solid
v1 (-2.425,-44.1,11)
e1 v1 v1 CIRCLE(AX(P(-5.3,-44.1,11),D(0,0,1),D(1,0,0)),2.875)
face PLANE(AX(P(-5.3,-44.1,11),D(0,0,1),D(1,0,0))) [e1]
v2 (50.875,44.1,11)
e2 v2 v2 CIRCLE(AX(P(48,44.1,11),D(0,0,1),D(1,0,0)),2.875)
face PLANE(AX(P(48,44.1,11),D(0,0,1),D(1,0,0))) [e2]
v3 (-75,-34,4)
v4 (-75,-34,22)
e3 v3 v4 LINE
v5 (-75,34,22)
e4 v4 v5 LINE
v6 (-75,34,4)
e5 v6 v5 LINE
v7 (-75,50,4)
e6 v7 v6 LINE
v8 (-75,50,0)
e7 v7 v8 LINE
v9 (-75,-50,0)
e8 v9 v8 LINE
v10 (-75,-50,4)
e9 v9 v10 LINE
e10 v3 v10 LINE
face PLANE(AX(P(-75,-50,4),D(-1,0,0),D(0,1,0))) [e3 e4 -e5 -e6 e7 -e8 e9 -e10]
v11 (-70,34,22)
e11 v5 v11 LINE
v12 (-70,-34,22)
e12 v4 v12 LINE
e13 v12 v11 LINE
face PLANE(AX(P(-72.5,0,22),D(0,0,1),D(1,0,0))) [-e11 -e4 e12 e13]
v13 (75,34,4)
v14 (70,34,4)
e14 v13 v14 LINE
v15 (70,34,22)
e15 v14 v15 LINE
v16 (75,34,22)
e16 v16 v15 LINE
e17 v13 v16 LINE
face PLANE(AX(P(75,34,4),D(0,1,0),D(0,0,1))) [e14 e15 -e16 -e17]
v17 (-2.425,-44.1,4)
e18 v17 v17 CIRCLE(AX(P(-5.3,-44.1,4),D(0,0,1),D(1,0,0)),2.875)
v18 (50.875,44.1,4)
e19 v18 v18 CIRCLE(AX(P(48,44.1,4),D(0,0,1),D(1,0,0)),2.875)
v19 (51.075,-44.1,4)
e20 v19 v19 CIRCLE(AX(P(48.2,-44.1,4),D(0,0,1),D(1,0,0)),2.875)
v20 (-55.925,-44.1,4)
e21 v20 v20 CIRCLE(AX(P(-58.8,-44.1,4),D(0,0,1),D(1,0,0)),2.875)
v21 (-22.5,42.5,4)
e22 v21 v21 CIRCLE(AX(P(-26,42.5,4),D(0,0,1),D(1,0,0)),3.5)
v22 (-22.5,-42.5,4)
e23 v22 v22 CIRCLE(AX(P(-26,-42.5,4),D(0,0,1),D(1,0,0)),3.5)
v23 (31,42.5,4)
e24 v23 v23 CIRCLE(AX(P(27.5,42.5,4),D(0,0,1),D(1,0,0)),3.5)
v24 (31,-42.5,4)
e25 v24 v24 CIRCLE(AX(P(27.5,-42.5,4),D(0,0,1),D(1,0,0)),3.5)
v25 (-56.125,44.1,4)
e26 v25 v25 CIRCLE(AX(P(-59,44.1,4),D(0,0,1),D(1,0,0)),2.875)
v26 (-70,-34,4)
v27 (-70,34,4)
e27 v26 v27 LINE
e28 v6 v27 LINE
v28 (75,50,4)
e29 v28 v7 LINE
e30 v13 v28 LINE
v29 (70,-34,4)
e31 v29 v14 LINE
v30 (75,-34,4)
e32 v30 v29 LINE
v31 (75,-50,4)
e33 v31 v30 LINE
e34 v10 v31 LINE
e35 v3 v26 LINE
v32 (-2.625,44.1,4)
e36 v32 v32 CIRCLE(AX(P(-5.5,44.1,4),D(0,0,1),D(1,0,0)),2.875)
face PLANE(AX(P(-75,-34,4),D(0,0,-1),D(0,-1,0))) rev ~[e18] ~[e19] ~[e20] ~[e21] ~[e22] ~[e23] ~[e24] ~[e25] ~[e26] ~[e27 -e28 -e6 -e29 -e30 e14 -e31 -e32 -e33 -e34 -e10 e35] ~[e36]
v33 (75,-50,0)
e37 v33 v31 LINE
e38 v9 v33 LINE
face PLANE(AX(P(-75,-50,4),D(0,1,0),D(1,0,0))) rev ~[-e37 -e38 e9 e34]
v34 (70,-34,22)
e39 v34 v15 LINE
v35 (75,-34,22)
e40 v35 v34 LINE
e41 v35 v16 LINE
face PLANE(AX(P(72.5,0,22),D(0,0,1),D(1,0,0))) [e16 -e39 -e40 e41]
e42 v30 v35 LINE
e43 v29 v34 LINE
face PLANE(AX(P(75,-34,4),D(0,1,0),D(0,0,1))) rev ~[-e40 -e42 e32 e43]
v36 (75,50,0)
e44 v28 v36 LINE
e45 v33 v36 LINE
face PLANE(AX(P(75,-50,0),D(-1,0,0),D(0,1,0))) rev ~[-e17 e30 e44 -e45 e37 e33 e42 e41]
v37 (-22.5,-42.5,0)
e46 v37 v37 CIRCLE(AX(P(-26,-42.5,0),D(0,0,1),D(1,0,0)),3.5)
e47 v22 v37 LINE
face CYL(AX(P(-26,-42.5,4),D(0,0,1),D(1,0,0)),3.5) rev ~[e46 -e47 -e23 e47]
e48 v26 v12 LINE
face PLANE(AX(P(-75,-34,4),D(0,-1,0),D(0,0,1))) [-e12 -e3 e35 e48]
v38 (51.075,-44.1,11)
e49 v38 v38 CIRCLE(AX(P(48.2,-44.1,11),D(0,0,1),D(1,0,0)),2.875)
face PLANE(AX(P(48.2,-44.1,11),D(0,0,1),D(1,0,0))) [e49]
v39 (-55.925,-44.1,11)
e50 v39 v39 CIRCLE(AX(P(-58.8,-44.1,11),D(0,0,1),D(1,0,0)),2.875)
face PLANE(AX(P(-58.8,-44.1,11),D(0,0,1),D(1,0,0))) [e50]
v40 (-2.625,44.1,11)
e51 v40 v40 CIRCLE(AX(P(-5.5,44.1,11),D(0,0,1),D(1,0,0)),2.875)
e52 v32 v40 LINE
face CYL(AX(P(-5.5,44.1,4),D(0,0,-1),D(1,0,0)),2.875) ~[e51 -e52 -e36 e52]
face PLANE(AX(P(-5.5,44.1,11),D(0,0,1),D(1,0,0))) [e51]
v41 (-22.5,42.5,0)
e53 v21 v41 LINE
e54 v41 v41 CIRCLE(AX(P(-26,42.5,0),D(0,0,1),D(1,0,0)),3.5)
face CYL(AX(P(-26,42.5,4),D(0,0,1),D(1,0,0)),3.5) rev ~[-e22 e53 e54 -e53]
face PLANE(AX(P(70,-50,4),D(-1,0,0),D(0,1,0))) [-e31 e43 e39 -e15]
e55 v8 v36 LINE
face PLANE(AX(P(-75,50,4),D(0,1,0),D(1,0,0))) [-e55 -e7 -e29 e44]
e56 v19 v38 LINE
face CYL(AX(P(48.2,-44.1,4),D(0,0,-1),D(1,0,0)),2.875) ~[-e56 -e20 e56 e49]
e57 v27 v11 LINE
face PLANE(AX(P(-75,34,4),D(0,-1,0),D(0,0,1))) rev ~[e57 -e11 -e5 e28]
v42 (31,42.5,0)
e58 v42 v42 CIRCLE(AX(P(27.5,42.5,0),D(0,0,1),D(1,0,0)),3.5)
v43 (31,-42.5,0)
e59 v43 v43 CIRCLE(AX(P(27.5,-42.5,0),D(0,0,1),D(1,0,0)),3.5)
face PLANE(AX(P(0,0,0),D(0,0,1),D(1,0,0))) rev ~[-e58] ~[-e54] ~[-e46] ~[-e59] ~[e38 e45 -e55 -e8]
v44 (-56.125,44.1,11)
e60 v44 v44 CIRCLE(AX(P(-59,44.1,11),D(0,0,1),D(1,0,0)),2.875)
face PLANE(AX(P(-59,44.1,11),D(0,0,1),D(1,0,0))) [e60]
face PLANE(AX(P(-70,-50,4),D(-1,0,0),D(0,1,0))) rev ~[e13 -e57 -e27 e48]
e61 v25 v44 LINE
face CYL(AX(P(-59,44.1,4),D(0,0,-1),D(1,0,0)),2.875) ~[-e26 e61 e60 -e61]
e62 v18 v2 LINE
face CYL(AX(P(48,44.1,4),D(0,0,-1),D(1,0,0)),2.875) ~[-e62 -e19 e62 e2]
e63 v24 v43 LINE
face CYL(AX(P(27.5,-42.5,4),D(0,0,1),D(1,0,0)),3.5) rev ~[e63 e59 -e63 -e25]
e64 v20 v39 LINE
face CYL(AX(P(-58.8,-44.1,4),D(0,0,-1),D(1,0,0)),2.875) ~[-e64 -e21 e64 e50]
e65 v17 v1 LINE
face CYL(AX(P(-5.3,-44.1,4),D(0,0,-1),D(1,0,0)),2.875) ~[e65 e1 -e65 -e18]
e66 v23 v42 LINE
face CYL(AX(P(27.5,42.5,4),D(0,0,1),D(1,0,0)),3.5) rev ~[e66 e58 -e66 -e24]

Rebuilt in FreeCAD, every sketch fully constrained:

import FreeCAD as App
import Part
import Sketcher

V = App.Vector
Q = App.Units.Quantity

doc = App.newDocument("Part")
body = doc.addObject("PartDesign::Body", "Body")

# Sketch on XY plane
sketch1 = body.newObject("Sketcher::SketchObject", "Sketch")
sketch1.AttachmentSupport = (doc.getObject("XY_Plane"), [""])
sketch1.MapMode = "FlatFace"
sketch1.addGeometry([
    Part.LineSegment(V(-75, 50, 0), V(-75, -50, 0)),
    Part.LineSegment(V(-75, -50, 0), V(75, -50, 0)),
    Part.LineSegment(V(75, -50, 0), V(75, 50, 0)),
    Part.LineSegment(V(75, 50, 0), V(-75, 50, 0)),
], False)
sketch1.addConstraint([
    Sketcher.Constraint("Coincident", 0, 2, 1, 1),
    Sketcher.Constraint("Coincident", 1, 2, 2, 1),
    Sketcher.Constraint("Coincident", 2, 2, 3, 1),
    Sketcher.Constraint("Coincident", 3, 2, 0, 1),
    Sketcher.Constraint("Vertical", 0),
    Sketcher.Constraint("Horizontal", 1),
    Sketcher.Constraint("Vertical", 2),
    Sketcher.Constraint("Horizontal", 3),
    Sketcher.Constraint("Symmetric", 0, 2, 2, 2, -1, 1),
    Sketcher.Constraint("DistanceX", 1, 1, 1, 2, Q("150 mm")),
    Sketcher.Constraint("DistanceY", 0, 2, 0, 1, Q("100 mm")),
])
pad1 = body.newObject("PartDesign::Pad", "Pad")
pad1.Profile = sketch1
pad1.Length = 4

# Sketch on XY plane
sketch2 = body.newObject("Sketcher::SketchObject", "Sketch001")
sketch2.AttachmentSupport = (doc.getObject("XY_Plane"), [""])
sketch2.MapMode = "FlatFace"
sketch2.AttachmentOffset = App.Placement(V(0, 0, 4), App.Rotation())
sketch2.addGeometry([
    Part.LineSegment(V(-75, 50, 0), V(-75, -50, 0)),  # 0
    Part.LineSegment(V(-75, -50, 0), V(-70, -50, 0)),  # 1
    Part.LineSegment(V(-70, -50, 0), V(-70, 50, 0)),  # 2
    Part.LineSegment(V(-70, 50, 0), V(-75, 50, 0)),  # 3
    Part.LineSegment(V(70, 50, 0), V(70, -50, 0)),  # 4
    Part.LineSegment(V(70, -50, 0), V(75, -50, 0)),  # 5
    Part.LineSegment(V(75, -50, 0), V(75, 50, 0)),  # 6
    Part.LineSegment(V(75, 50, 0), V(70, 50, 0)),  # 7
], False)
sketch2.addConstraint([
    Sketcher.Constraint("Coincident", 0, 2, 1, 1),
    Sketcher.Constraint("Coincident", 1, 2, 2, 1),
    Sketcher.Constraint("Coincident", 2, 2, 3, 1),
    Sketcher.Constraint("Coincident", 3, 2, 0, 1),
    Sketcher.Constraint("Coincident", 4, 2, 5, 1),
    Sketcher.Constraint("Coincident", 5, 2, 6, 1),
    Sketcher.Constraint("Coincident", 6, 2, 7, 1),
    Sketcher.Constraint("Coincident", 7, 2, 4, 1),
    Sketcher.Constraint("Vertical", 0),
    Sketcher.Constraint("Horizontal", 1),
    Sketcher.Constraint("Vertical", 2),
    Sketcher.Constraint("Horizontal", 3),
    Sketcher.Constraint("Vertical", 4),
    Sketcher.Constraint("Horizontal", 5),
    Sketcher.Constraint("Vertical", 6),
    Sketcher.Constraint("Horizontal", 7),
    Sketcher.Constraint("Symmetric", 2, 2, 4, 2, -1, 1),
    Sketcher.Constraint("Symmetric", 0, 2, 6, 2, -1, 1),
    Sketcher.Constraint("Horizontal", 1, 2, 4, 2),
    Sketcher.Constraint("DistanceX", 1, 1, 1, 2, Q("5 mm")),
    Sketcher.Constraint("DistanceY", 0, 2, 0, 1, Q("100 mm")),
    Sketcher.Constraint("DistanceX", 0, 2, -1, 1, Q("75 mm")),
])
pad2 = body.newObject("PartDesign::Pad", "Pad001")
pad2.Profile = sketch2
pad2.Length = 18

# Sketch on XY plane
sketch3 = body.newObject("Sketcher::SketchObject", "Sketch002")
sketch3.AttachmentSupport = (doc.getObject("XY_Plane"), [""])
sketch3.MapMode = "FlatFace"
sketch3.AttachmentOffset = App.Placement(V(0, 0, 4), App.Rotation())
sketch3.addGeometry([
    Part.Circle(V(-26, 42.5, 0), V(0, 0, 1), 3.5),
    Part.Circle(V(27.5, 42.5, 0), V(0, 0, 1), 3.5),
    Part.Circle(V(27.5, -42.5, 0), V(0, 0, 1), 3.5),
    Part.Circle(V(-26, -42.5, 0), V(0, 0, 1), 3.5),
], False)
sketch3.addConstraint([
    Sketcher.Constraint("Equal", 0, 1),
    Sketcher.Constraint("Equal", 1, 2),
    Sketcher.Constraint("Equal", 2, 3),
    Sketcher.Constraint("Symmetric", 1, 3, 2, 3, -1),
    Sketcher.Constraint("Symmetric", 0, 3, 3, 3, -1),
    Sketcher.Constraint("Horizontal", 0, 3, 1, 3),
    Sketcher.Constraint("Diameter", 0, Q("7 mm")),
    Sketcher.Constraint("DistanceX", 0, 3, -1, 1, Q("26 mm")),
    Sketcher.Constraint("DistanceY", 2, 3, 1, 3, Q("85 mm")),
    Sketcher.Constraint("DistanceX", -1, 1, 1, 3, Q("27.5 mm")),
])
pocket1 = body.newObject("PartDesign::Pocket", "Pocket")
pocket1.Profile = sketch3
pocket1.Length = 5

# Sketch on XY plane
sketch4 = body.newObject("Sketcher::SketchObject", "Sketch003")
sketch4.AttachmentSupport = (doc.getObject("XY_Plane"), [""])
sketch4.MapMode = "FlatFace"
sketch4.AttachmentOffset = App.Placement(V(0, 0, 4), App.Rotation())
sketch4.addGeometry([
    Part.Circle(V(-59, 44.1, 0), V(0, 0, 1), 2.875),  # 0
    Part.Circle(V(-5.5, 44.1, 0), V(0, 0, 1), 2.875),  # 1
    Part.Circle(V(48, 44.1, 0), V(0, 0, 1), 2.875),  # 2
    Part.Circle(V(48.2, -44.1, 0), V(0, 0, 1), 2.875),  # 3
    Part.Circle(V(-5.3, -44.1, 0), V(0, 0, 1), 2.875),  # 4
    Part.Circle(V(-58.8, -44.1, 0), V(0, 0, 1), 2.875),  # 5
], False)
sketch4.addConstraint([
    Sketcher.Constraint("Equal", 0, 1),
    Sketcher.Constraint("Equal", 1, 2),
    Sketcher.Constraint("Equal", 2, 3),
    Sketcher.Constraint("Equal", 3, 4),
    Sketcher.Constraint("Equal", 4, 5),
    Sketcher.Constraint("Horizontal", 0, 3, 1, 3),
    Sketcher.Constraint("Horizontal", 1, 3, 2, 3),
    Sketcher.Constraint("Horizontal", 3, 3, 4, 3),
    Sketcher.Constraint("Horizontal", 4, 3, 5, 3),
    Sketcher.Constraint("Diameter", 0, Q("5.75 mm")),
    Sketcher.Constraint("DistanceX", 0, 3, -1, 1, Q("59 mm")),
    Sketcher.Constraint("DistanceX", -1, 1, 2, 3, Q("48 mm")),
    Sketcher.Constraint("DistanceX", 5, 3, 3, 3, Q("107 mm")),
    Sketcher.Constraint("DistanceY", -1, 1, 0, 3, Q("44.1 mm")),
    Sketcher.Constraint("DistanceX", 1, 3, -1, 1, Q("5.5 mm")),
    Sketcher.Constraint("DistanceX", -1, 1, 3, 3, Q("48.2 mm")),
    Sketcher.Constraint("DistanceY", 3, 3, -1, 1, Q("44.1 mm")),
    Sketcher.Constraint("DistanceX", 4, 3, -1, 1, Q("5.3 mm")),
])
pad3 = body.newObject("PartDesign::Pad", "Pad002")
pad3.Profile = sketch4
pad3.Length = 7

# Sketch on YZ plane
sketch5 = body.newObject("Sketcher::SketchObject", "Sketch004")
sketch5.AttachmentSupport = (doc.getObject("YZ_Plane"), [""])
sketch5.MapMode = "FlatFace"
sketch5.AttachmentOffset = App.Placement(V(0, 0, -75), App.Rotation())
sketch5.addGeometry([
    Part.LineSegment(V(50, 22, 0), V(50, 4, 0)),  # 0
    Part.LineSegment(V(50, 4, 0), V(34, 4, 0)),  # 1
    Part.LineSegment(V(34, 4, 0), V(34, 22, 0)),  # 2
    Part.LineSegment(V(34, 22, 0), V(50, 22, 0)),  # 3
    Part.LineSegment(V(-34, 22, 0), V(-34, 4, 0)),  # 4
    Part.LineSegment(V(-34, 4, 0), V(-50, 4, 0)),  # 5
    Part.LineSegment(V(-50, 4, 0), V(-50, 22, 0)),  # 6
    Part.LineSegment(V(-50, 22, 0), V(-34, 22, 0)),  # 7
], False)
sketch5.addConstraint([
    Sketcher.Constraint("Coincident", 0, 2, 1, 1),
    Sketcher.Constraint("Coincident", 1, 2, 2, 1),
    Sketcher.Constraint("Coincident", 2, 2, 3, 1),
    Sketcher.Constraint("Coincident", 3, 2, 0, 1),
    Sketcher.Constraint("Coincident", 4, 2, 5, 1),
    Sketcher.Constraint("Coincident", 5, 2, 6, 1),
    Sketcher.Constraint("Coincident", 6, 2, 7, 1),
    Sketcher.Constraint("Coincident", 7, 2, 4, 1),
    Sketcher.Constraint("Vertical", 0),
    Sketcher.Constraint("Horizontal", 1),
    Sketcher.Constraint("Vertical", 2),
    Sketcher.Constraint("Horizontal", 3),
    Sketcher.Constraint("Vertical", 4),
    Sketcher.Constraint("Horizontal", 5),
    Sketcher.Constraint("Vertical", 6),
    Sketcher.Constraint("Horizontal", 7),
    Sketcher.Constraint("Symmetric", 1, 2, 4, 2, -2),
    Sketcher.Constraint("Symmetric", 3, 2, 6, 2, -2),
    Sketcher.Constraint("DistanceX", 1, 2, 1, 1, Q("16 mm")),
    Sketcher.Constraint("DistanceY", 0, 2, 0, 1, Q("18 mm")),
    Sketcher.Constraint("DistanceX", -1, 1, 0, 2, Q("50 mm")),
    Sketcher.Constraint("DistanceY", -1, 1, 0, 2, Q("4 mm")),
])
pocket2 = body.newObject("PartDesign::Pocket", "Pocket001")
pocket2.Profile = sketch5
pocket2.Length = 5
pocket2.Reversed = True

# Sketch on YZ plane
sketch6 = body.newObject("Sketcher::SketchObject", "Sketch005")
sketch6.AttachmentSupport = (doc.getObject("YZ_Plane"), [""])
sketch6.MapMode = "FlatFace"
sketch6.AttachmentOffset = App.Placement(V(0, 0, 75), App.Rotation())
sketch6.addGeometry([
    Part.LineSegment(V(34, 22, 0), V(34, 4, 0)),  # 0
    Part.LineSegment(V(34, 4, 0), V(50, 4, 0)),  # 1
    Part.LineSegment(V(50, 4, 0), V(50, 22, 0)),  # 2
    Part.LineSegment(V(50, 22, 0), V(34, 22, 0)),  # 3
    Part.LineSegment(V(-50, 22, 0), V(-50, 4, 0)),  # 4
    Part.LineSegment(V(-50, 4, 0), V(-34, 4, 0)),  # 5
    Part.LineSegment(V(-34, 4, 0), V(-34, 22, 0)),  # 6
    Part.LineSegment(V(-34, 22, 0), V(-50, 22, 0)),  # 7
], False)
sketch6.addConstraint([
    Sketcher.Constraint("Coincident", 0, 2, 1, 1),
    Sketcher.Constraint("Coincident", 1, 2, 2, 1),
    Sketcher.Constraint("Coincident", 2, 2, 3, 1),
    Sketcher.Constraint("Coincident", 3, 2, 0, 1),
    Sketcher.Constraint("Coincident", 4, 2, 5, 1),
    Sketcher.Constraint("Coincident", 5, 2, 6, 1),
    Sketcher.Constraint("Coincident", 6, 2, 7, 1),
    Sketcher.Constraint("Coincident", 7, 2, 4, 1),
    Sketcher.Constraint("Vertical", 0),
    Sketcher.Constraint("Horizontal", 1),
    Sketcher.Constraint("Vertical", 2),
    Sketcher.Constraint("Horizontal", 3),
    Sketcher.Constraint("Vertical", 4),
    Sketcher.Constraint("Horizontal", 5),
    Sketcher.Constraint("Vertical", 6),
    Sketcher.Constraint("Horizontal", 7),
    Sketcher.Constraint("Symmetric", 1, 2, 4, 2, -2),
    Sketcher.Constraint("Symmetric", 3, 2, 6, 2, -2),
    Sketcher.Constraint("DistanceX", 1, 1, 1, 2, Q("16 mm")),
    Sketcher.Constraint("DistanceY", 0, 2, 0, 1, Q("18 mm")),
    Sketcher.Constraint("DistanceX", -1, 1, 0, 2, Q("34 mm")),
    Sketcher.Constraint("DistanceY", -1, 1, 0, 2, Q("4 mm")),
])
pocket3 = body.newObject("PartDesign::Pocket", "Pocket002")
pocket3.Profile = sketch6
pocket3.Length = 5

doc.recompute()
